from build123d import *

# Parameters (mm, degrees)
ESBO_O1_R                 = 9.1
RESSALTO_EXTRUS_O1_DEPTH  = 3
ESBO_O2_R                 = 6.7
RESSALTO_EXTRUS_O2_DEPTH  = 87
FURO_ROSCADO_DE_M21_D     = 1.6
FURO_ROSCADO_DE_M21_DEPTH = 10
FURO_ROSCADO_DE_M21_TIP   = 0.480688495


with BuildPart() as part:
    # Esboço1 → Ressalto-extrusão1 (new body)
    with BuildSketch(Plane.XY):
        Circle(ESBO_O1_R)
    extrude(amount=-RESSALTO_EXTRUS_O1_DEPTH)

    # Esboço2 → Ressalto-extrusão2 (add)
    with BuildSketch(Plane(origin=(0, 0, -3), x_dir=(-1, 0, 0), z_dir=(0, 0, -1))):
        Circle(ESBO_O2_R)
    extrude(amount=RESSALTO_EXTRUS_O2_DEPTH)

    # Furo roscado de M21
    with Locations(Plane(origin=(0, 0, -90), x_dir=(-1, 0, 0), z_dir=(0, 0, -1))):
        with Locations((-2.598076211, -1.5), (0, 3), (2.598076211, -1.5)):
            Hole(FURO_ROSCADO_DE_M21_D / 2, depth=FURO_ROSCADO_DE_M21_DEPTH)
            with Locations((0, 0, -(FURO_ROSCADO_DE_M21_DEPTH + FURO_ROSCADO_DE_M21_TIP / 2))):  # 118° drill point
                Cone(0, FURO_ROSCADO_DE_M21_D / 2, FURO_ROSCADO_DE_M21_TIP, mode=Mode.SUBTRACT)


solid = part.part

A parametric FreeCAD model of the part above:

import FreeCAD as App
import Part
import Sketcher

doc = App.newDocument("Part")
body = doc.addObject("PartDesign::Body", "Body")

sketch1 = body.newObject("Sketcher::SketchObject", "Sketch")
sketch1.AttachmentSupport = (doc.getObject("XY_Plane"), [""])
sketch1.MapMode = "FlatFace"
sketch1.addGeometry(Part.Circle(App.Vector(0, 0, 0), App.Vector(0, 0, 1), 9.1), False)
sketch1.addConstraint([
    Sketcher.Constraint("Coincident", 0, 3, -1, 1),
    Sketcher.Constraint("Diameter", 0, 18.2),
])
pad1 = body.newObject("PartDesign::Pad", "Pad")
pad1.Profile = sketch1
pad1.Length = 3
pad1.Reversed = True

sketch2 = body.newObject("Sketcher::SketchObject", "Sketch001")
sketch2.AttachmentSupport = (doc.getObject("XY_Plane"), [""])
sketch2.MapMode = "FlatFace"
sketch2.AttachmentOffset = App.Placement(App.Vector(0, 0, -3), App.Rotation())
sketch2.addGeometry(Part.Circle(App.Vector(0, 0, 0), App.Vector(0, 0, 1), 6.7), False)
sketch2.addConstraint([
    Sketcher.Constraint("Coincident", 0, 3, -1, 1),
    Sketcher.Constraint("Diameter", 0, 13.4),
])
pad2 = body.newObject("PartDesign::Pad", "Pad001")
pad2.Profile = sketch2
pad2.Length = 87
pad2.Reversed = True

sketch3 = body.newObject("Sketcher::SketchObject", "Sketch002")
sketch3.AttachmentSupport = (doc.getObject("XY_Plane"), [""])
sketch3.MapMode = "FlatFace"
sketch3.AttachmentOffset = App.Placement(App.Vector(0, 0, -90), App.Rotation())
sketch3.addGeometry([
    Part.Circle(App.Vector(2.598076, -1.5, 0), App.Vector(0, 0, 1), 0.8),
    Part.Circle(App.Vector(0, 3, 0), App.Vector(0, 0, 1), 0.8),
    Part.Circle(App.Vector(-2.598076, -1.5, 0), App.Vector(0, 0, 1), 0.8),
], False)
sketch3.addConstraint([
    Sketcher.Constraint("Equal", 0, 1),
    Sketcher.Constraint("Equal", 1, 2),
    Sketcher.Constraint("Symmetric", 0, 3, 2, 3, -2),
    Sketcher.Constraint("PointOnObject", 1, 3, -2),
    Sketcher.Constraint("Diameter", 0, 1.6),
    Sketcher.Constraint("DistanceY", -1, 1, 1, 3, 3.0),
    Sketcher.Constraint("DistanceY", 0, 3, -1, 1, 1.5),
    Sketcher.Constraint("DistanceX", -1, 1, 0, 3, 2.598076),
])
doc.recompute()
hole = body.newObject("PartDesign::Hole", "Hole")
hole.Profile = sketch3
hole.ThreadType = "None"
hole.Diameter = 1.6
hole.DepthType = "Dimension"
hole.Depth = 10
hole.DrillPoint = "Angled"
hole.DrillPointAngle = 118
hole.Reversed = True

doc.recompute()
